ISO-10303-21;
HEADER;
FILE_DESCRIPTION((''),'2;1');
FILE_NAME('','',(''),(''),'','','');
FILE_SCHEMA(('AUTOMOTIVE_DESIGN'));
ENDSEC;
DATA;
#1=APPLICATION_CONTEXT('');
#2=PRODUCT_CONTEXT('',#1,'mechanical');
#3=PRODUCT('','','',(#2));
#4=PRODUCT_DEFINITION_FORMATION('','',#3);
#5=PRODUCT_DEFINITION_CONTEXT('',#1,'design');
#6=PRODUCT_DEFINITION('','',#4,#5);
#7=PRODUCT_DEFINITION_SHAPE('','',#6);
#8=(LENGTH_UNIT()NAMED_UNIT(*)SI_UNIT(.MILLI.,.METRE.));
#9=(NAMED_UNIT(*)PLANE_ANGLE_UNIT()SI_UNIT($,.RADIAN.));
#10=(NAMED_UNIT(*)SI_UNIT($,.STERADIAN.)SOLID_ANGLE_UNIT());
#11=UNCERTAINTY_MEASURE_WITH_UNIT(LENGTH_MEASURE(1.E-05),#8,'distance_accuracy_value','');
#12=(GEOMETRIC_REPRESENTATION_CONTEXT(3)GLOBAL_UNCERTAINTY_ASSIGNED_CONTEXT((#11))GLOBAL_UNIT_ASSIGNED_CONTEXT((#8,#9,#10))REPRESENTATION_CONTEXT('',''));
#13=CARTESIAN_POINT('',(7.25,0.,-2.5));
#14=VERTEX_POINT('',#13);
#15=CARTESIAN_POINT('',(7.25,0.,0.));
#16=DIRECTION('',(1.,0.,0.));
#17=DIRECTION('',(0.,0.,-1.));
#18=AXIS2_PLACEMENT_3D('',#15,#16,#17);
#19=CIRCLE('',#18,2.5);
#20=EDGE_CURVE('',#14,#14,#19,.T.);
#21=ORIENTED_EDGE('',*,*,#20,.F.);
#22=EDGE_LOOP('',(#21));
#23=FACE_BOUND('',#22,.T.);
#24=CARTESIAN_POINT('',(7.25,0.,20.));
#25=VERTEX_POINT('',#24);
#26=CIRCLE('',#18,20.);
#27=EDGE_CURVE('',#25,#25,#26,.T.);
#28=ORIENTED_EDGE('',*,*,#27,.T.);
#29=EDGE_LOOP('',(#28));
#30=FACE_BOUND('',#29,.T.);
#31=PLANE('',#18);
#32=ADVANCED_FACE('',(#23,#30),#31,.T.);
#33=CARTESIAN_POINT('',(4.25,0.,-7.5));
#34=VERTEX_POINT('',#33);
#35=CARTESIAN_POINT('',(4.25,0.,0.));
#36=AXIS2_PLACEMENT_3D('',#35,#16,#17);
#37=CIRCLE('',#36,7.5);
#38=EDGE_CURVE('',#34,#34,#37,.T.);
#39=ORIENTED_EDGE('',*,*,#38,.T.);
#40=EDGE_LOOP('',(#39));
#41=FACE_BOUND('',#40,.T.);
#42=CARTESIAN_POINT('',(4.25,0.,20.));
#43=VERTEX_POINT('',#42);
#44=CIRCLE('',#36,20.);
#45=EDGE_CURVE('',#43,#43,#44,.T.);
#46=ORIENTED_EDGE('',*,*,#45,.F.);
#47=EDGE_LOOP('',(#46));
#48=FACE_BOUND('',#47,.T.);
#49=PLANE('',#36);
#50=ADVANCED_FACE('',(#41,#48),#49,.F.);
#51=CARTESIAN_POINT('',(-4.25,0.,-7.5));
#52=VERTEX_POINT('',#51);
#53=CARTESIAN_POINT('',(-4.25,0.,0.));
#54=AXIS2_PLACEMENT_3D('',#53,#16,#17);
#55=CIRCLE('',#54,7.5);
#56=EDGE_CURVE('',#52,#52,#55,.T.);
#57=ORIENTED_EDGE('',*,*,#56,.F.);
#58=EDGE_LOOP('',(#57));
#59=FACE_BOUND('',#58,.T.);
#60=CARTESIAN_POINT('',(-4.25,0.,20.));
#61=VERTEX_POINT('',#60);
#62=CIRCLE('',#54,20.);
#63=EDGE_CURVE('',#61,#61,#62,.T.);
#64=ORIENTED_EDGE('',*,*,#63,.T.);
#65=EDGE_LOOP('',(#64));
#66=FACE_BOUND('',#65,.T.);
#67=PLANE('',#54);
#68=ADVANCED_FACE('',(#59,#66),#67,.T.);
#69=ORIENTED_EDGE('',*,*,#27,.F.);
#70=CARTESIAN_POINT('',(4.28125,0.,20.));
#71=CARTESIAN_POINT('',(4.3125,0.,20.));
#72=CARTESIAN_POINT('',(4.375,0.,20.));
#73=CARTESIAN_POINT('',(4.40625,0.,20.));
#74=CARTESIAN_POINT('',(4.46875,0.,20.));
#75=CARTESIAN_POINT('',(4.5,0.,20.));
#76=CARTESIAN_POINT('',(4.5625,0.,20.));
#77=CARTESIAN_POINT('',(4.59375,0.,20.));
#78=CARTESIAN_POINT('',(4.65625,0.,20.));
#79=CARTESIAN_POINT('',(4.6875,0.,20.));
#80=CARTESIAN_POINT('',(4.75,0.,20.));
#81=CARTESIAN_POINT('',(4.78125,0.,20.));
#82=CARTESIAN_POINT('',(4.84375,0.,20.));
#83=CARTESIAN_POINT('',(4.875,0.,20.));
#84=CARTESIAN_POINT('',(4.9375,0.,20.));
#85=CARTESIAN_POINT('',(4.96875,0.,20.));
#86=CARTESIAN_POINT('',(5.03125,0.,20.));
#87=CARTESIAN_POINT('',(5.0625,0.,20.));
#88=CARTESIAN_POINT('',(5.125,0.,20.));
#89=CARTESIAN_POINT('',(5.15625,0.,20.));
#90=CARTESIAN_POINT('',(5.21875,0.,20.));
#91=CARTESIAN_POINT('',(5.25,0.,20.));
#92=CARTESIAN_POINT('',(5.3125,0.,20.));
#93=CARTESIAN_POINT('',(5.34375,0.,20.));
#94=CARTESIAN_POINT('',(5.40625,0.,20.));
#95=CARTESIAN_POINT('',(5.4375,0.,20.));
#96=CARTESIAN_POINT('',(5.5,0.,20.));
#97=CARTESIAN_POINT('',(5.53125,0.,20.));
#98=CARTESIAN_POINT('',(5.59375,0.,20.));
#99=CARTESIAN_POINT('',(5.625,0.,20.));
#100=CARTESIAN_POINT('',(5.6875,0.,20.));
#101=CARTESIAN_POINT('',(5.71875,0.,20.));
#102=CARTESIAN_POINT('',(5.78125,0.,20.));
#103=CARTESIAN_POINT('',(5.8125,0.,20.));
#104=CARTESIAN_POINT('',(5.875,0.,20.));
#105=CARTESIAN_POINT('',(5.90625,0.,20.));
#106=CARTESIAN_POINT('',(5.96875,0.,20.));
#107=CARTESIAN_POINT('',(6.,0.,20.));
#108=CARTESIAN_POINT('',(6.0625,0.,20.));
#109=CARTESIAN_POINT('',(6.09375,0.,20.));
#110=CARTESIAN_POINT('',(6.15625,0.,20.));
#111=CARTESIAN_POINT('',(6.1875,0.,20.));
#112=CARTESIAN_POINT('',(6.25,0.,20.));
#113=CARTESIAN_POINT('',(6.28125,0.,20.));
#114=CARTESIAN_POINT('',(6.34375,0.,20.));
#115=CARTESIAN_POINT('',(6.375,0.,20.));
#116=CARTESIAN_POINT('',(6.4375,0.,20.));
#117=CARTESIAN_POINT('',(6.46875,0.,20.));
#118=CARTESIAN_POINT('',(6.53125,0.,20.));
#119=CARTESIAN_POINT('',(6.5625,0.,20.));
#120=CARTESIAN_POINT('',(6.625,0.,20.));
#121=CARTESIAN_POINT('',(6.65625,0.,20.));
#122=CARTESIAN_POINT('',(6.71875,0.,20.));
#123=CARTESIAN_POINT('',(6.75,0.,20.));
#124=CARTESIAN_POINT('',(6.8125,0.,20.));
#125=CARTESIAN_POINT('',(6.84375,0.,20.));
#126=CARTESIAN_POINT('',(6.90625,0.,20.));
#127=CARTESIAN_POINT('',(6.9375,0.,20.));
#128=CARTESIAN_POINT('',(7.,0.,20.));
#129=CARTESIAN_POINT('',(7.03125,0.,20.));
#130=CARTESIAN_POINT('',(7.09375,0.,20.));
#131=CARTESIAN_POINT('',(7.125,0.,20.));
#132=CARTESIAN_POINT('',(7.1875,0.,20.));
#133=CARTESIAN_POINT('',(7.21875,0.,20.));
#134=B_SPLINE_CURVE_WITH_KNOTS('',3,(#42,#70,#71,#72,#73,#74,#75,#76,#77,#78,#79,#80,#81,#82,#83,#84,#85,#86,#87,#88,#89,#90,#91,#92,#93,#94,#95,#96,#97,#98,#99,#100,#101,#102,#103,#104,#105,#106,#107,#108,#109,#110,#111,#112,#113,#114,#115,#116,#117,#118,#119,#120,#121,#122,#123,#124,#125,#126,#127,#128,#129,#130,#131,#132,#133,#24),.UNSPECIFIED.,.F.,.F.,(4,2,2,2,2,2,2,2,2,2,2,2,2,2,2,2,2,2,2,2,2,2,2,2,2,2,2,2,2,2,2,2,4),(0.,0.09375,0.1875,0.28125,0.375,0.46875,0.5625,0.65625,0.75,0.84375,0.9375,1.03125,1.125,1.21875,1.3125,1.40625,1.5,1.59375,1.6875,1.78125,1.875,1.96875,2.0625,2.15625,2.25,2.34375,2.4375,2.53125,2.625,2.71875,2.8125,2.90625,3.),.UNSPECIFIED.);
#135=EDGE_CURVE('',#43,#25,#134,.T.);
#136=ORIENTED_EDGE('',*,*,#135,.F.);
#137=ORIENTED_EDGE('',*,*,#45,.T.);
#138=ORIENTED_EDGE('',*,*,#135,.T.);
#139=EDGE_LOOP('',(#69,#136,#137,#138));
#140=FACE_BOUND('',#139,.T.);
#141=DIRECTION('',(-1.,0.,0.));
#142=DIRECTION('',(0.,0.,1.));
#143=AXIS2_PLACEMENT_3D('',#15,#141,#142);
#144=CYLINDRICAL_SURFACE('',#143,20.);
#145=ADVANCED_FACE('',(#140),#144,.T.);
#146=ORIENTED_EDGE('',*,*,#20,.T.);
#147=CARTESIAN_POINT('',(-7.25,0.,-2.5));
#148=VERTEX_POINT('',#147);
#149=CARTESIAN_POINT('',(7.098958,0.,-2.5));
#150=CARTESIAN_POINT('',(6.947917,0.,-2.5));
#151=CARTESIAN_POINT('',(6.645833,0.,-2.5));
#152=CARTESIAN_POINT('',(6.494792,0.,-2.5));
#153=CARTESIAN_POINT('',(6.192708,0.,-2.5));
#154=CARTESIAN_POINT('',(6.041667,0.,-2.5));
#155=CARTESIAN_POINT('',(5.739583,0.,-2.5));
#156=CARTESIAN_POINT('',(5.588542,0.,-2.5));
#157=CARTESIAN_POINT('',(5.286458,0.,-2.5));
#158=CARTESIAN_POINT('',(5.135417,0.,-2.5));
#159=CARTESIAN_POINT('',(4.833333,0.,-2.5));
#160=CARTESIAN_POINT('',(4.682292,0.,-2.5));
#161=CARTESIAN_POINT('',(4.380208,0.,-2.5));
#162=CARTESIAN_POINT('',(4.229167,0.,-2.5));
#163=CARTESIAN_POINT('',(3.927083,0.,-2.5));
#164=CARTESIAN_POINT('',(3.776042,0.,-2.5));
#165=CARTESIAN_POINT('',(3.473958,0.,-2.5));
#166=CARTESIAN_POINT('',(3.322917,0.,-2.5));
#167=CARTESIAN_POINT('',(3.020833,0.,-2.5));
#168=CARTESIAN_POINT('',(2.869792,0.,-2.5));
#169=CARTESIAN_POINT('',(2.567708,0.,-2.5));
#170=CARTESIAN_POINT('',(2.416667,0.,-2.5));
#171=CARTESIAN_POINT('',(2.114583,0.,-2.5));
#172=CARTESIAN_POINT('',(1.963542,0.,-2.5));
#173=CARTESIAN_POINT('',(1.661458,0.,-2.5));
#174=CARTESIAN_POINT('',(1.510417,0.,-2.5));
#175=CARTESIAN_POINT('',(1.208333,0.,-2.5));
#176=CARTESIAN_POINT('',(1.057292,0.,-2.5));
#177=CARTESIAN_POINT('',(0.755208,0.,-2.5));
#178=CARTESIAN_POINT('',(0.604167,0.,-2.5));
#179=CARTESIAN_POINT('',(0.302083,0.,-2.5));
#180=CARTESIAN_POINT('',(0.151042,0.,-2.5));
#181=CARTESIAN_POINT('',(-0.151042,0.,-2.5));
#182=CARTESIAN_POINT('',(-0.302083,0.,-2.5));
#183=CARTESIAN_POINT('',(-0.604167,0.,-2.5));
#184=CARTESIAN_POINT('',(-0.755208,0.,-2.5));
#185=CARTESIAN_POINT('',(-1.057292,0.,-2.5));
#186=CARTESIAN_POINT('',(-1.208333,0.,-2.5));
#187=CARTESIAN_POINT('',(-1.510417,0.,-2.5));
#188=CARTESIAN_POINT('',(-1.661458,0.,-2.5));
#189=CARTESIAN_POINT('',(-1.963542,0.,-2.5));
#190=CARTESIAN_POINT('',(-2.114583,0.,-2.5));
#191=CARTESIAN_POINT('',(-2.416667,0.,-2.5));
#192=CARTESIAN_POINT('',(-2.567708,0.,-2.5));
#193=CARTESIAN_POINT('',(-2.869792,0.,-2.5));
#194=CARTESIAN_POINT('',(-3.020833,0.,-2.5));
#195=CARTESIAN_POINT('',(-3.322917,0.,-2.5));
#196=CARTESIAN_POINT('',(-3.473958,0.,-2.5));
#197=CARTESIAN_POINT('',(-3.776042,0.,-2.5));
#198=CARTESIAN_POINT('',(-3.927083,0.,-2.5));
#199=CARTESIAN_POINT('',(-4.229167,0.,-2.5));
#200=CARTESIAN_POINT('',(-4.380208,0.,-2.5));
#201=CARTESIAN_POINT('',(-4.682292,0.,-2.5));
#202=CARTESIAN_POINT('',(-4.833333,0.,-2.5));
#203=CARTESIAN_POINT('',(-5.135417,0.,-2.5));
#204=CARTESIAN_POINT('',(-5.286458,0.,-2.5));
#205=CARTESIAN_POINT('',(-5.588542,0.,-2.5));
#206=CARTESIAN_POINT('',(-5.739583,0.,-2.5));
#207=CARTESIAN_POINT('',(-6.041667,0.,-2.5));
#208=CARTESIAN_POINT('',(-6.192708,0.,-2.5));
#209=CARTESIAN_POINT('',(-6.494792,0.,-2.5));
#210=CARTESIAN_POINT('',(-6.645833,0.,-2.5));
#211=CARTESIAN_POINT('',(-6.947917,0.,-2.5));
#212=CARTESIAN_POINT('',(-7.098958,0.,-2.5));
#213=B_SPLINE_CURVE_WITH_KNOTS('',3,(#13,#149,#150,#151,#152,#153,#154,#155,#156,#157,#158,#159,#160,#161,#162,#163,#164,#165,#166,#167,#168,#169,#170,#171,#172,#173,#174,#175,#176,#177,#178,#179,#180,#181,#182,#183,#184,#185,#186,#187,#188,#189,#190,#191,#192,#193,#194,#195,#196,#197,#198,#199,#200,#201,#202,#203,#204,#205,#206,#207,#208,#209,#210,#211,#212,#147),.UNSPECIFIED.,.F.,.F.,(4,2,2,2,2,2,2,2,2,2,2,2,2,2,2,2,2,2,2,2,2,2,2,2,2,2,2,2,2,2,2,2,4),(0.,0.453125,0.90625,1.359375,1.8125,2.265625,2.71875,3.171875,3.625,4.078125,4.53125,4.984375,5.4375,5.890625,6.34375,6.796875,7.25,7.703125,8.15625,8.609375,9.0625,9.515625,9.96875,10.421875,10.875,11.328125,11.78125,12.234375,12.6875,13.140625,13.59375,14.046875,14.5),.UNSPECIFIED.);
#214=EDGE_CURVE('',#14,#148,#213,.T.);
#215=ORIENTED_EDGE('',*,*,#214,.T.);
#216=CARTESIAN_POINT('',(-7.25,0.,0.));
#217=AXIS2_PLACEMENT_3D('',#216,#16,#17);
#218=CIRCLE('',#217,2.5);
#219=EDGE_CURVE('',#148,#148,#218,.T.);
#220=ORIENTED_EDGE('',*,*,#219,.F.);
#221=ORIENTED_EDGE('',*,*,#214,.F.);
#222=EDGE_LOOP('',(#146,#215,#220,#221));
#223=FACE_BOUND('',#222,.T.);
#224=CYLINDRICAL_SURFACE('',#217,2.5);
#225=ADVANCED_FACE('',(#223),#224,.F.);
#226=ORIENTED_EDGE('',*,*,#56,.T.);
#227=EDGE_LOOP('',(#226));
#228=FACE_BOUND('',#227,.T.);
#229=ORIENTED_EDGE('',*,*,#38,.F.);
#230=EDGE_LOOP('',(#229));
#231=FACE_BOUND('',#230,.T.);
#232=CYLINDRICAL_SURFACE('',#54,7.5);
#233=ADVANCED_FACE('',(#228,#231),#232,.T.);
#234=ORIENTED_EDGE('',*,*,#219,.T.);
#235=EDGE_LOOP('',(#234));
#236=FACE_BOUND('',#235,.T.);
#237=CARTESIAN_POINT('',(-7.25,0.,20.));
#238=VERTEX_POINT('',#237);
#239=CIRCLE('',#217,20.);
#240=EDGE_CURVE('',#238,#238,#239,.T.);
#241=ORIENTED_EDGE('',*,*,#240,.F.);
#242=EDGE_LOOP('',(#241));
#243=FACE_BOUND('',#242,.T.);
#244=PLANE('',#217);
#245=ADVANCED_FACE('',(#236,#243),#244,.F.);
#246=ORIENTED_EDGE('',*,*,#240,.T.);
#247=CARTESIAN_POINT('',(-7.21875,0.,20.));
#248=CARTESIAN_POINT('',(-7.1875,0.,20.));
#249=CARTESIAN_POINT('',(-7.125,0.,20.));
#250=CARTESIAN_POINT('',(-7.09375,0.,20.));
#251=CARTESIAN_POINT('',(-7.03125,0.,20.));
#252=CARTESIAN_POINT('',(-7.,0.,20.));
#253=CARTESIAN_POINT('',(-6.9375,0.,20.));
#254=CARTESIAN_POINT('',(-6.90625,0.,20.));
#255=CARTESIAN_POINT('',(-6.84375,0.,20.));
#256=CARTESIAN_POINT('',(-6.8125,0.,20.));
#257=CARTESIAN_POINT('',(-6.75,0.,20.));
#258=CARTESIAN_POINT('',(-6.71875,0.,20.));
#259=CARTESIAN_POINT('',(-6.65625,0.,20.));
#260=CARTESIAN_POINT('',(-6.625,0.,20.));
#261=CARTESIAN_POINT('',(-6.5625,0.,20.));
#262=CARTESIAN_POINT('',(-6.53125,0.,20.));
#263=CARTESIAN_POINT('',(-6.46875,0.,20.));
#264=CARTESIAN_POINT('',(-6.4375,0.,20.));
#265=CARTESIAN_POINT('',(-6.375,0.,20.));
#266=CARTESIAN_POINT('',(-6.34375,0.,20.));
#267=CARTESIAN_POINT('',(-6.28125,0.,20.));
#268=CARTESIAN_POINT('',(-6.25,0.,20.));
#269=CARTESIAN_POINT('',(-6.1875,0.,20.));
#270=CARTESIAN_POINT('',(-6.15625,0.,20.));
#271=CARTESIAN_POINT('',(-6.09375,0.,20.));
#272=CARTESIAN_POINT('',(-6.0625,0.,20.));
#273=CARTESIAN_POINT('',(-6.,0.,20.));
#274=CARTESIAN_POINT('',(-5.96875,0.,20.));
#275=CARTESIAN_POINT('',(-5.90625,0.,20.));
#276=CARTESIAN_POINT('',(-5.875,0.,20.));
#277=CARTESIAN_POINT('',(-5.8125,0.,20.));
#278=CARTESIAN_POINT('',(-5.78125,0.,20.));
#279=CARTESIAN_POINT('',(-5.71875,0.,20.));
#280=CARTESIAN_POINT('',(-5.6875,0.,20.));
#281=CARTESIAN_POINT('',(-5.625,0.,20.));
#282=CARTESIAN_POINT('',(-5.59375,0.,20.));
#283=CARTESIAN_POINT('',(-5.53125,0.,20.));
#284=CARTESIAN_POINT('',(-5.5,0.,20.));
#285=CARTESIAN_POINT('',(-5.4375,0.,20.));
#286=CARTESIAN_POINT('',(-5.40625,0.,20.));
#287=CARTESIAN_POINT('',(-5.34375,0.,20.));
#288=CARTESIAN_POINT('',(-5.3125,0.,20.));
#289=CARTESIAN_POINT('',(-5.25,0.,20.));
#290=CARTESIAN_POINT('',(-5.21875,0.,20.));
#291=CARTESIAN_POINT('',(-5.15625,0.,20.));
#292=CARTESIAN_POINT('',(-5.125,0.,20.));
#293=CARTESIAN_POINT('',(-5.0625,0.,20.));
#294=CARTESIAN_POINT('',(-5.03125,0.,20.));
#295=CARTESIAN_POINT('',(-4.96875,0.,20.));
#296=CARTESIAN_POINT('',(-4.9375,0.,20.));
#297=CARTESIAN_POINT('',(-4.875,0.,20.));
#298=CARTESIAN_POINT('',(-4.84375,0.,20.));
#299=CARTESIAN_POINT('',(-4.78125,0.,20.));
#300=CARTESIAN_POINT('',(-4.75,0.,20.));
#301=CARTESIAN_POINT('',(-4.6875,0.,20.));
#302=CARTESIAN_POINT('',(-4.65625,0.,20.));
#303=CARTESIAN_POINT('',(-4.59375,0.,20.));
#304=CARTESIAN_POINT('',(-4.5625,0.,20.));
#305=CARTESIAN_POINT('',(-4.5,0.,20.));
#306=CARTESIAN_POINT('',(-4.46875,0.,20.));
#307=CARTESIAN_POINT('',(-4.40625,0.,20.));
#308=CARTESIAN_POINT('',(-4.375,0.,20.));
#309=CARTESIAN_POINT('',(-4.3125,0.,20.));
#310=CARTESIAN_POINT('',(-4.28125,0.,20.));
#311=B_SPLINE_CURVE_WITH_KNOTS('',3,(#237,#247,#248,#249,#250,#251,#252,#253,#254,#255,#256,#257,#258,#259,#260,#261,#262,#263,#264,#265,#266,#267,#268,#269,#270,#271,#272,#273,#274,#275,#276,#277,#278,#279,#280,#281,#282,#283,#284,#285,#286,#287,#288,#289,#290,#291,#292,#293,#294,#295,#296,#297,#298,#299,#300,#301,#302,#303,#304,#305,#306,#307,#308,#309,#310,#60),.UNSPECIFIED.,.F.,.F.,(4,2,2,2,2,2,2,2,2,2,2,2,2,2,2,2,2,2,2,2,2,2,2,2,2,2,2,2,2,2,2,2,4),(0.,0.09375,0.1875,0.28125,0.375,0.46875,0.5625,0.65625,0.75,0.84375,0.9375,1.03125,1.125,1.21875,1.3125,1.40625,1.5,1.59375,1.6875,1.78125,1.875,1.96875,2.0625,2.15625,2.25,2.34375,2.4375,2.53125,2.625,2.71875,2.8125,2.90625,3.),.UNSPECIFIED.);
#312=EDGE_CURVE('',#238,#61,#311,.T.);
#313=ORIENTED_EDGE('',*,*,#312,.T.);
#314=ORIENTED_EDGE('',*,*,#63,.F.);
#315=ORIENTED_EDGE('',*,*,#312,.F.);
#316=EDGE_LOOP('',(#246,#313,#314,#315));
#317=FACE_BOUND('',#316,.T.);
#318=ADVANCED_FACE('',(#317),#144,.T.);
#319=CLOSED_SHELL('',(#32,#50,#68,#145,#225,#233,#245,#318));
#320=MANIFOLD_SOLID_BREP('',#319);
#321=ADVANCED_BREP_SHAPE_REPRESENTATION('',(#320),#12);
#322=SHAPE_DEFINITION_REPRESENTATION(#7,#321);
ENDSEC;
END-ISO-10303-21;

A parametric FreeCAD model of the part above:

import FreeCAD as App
import Part
import Sketcher
from FreeCAD import Vector
Q = App.Units.Quantity

doc = App.newDocument("Part")
body = doc.addObject("PartDesign::Body", "Body")

# Sketch on YZ plane
sketch1 = body.newObject("Sketcher::SketchObject", "Sketch")
sketch1.AttachmentSupport = (doc.getObject("YZ_Plane"), [""])
sketch1.MapMode = "FlatFace"
sketch1.addGeometry(Part.Circle(Vector(0, 0, 0), Vector(0, 0, 1), 20), False)
sketch1.addConstraint([
    Sketcher.Constraint("Coincident", 0, 3, -1, 1),
    Sketcher.Constraint("Diameter", 0, Q("40 mm")),
])
pad1 = body.newObject("PartDesign::Pad", "Pad")
pad1.Profile = sketch1
pad1.Length = 14.5
pad1.Midplane = True

# Sketch on YZ plane
sketch2 = body.newObject("Sketcher::SketchObject", "Sketch001")
sketch2.AttachmentSupport = (doc.getObject("YZ_Plane"), [""])
sketch2.MapMode = "FlatFace"
sketch2.addGeometry([
    Part.Circle(Vector(0, 0, 0), Vector(0, 0, 1), 20),
    Part.Circle(Vector(0, 0, 0), Vector(0, 0, 1), 8),
], False)
sketch2.addConstraint([
    Sketcher.Constraint("Coincident", 0, 3, -1, 1),
    Sketcher.Constraint("Coincident", 1, 3, -1, 1),
    Sketcher.Constraint("Diameter", 0, Q("40 mm")),
    Sketcher.Constraint("Diameter", 1, Q("15 mm")),
])
pocket1 = body.newObject("PartDesign::Pocket", "Pocket")
pocket1.Profile = sketch2
pocket1.Length = 8.5
pocket1.Midplane = True

# Sketch on YZ plane
sketch3 = body.newObject("Sketcher::SketchObject", "Sketch002")
sketch3.AttachmentSupport = (doc.getObject("YZ_Plane"), [""])
sketch3.MapMode = "FlatFace"
sketch3.AttachmentOffset = App.Placement(Vector(0, 0, 7.25), App.Rotation())
sketch3.addGeometry(Part.Circle(Vector(0, 0, 0), Vector(0, 0, 1), 2.5), False)
sketch3.addConstraint([
    Sketcher.Constraint("Coincident", 0, 3, -1, 1),
    Sketcher.Constraint("Diameter", 0, Q("5 mm")),
])
pocket2 = body.newObject("PartDesign::Pocket", "Pocket001")
pocket2.Profile = sketch3
pocket2.Type = "ThroughAll"
pocket2.Midplane = True

doc.recompute()
